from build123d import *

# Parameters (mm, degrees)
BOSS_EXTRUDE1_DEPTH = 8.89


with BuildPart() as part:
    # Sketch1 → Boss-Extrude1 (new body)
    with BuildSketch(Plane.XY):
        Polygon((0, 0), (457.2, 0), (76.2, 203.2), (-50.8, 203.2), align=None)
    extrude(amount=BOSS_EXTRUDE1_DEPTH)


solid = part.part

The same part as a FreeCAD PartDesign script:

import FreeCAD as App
import Part
import Sketcher
from FreeCAD import Vector
Q = App.Units.Quantity

doc = App.newDocument("Part")
body = doc.addObject("PartDesign::Body", "Body")

# Sketch on XY plane
sketch1 = body.newObject("Sketcher::SketchObject", "Sketch")
sketch1.AttachmentSupport = (doc.getObject("XY_Plane"), [""])
sketch1.MapMode = "FlatFace"
sketch1.addGeometry([
    Part.LineSegment(Vector(0, 0, 0), Vector(457.2, 0, 0)),
    Part.LineSegment(Vector(457.2, 0, 0), Vector(76.2, 203.2, 0)),
    Part.LineSegment(Vector(76.2, 203.2, 0), Vector(-50.8, 203.2, 0)),
    Part.LineSegment(Vector(-50.8, 203.2, 0), Vector(0, 0, 0)),
], False)
sketch1.addConstraint([
    Sketcher.Constraint("Coincident", 0, 2, 1, 1),
    Sketcher.Constraint("Coincident", 1, 2, 2, 1),
    Sketcher.Constraint("Coincident", 2, 2, 3, 1),
    Sketcher.Constraint("Coincident", 3, 2, 0, 1),
    Sketcher.Constraint("Horizontal", 0),
    Sketcher.Constraint("Horizontal", 2),
    Sketcher.Constraint("Coincident", 3, 2, -1, 1),
    Sketcher.Constraint("DistanceX", 0, 1, 0, 2, Q("18 in")),
    Sketcher.Constraint("DistanceX", 2, 2, 2, 1, Q("5 in")),
    Sketcher.Constraint("Distance", 1, Q("17 in")),
    Sketcher.Constraint("DistanceX", -1, 1, 1, 2, Q("3 in")),
])
pad1 = body.newObject("PartDesign::Pad", "Pad")
pad1.Profile = sketch1
pad1.Length = Q("0.35 in")

doc.recompute()
